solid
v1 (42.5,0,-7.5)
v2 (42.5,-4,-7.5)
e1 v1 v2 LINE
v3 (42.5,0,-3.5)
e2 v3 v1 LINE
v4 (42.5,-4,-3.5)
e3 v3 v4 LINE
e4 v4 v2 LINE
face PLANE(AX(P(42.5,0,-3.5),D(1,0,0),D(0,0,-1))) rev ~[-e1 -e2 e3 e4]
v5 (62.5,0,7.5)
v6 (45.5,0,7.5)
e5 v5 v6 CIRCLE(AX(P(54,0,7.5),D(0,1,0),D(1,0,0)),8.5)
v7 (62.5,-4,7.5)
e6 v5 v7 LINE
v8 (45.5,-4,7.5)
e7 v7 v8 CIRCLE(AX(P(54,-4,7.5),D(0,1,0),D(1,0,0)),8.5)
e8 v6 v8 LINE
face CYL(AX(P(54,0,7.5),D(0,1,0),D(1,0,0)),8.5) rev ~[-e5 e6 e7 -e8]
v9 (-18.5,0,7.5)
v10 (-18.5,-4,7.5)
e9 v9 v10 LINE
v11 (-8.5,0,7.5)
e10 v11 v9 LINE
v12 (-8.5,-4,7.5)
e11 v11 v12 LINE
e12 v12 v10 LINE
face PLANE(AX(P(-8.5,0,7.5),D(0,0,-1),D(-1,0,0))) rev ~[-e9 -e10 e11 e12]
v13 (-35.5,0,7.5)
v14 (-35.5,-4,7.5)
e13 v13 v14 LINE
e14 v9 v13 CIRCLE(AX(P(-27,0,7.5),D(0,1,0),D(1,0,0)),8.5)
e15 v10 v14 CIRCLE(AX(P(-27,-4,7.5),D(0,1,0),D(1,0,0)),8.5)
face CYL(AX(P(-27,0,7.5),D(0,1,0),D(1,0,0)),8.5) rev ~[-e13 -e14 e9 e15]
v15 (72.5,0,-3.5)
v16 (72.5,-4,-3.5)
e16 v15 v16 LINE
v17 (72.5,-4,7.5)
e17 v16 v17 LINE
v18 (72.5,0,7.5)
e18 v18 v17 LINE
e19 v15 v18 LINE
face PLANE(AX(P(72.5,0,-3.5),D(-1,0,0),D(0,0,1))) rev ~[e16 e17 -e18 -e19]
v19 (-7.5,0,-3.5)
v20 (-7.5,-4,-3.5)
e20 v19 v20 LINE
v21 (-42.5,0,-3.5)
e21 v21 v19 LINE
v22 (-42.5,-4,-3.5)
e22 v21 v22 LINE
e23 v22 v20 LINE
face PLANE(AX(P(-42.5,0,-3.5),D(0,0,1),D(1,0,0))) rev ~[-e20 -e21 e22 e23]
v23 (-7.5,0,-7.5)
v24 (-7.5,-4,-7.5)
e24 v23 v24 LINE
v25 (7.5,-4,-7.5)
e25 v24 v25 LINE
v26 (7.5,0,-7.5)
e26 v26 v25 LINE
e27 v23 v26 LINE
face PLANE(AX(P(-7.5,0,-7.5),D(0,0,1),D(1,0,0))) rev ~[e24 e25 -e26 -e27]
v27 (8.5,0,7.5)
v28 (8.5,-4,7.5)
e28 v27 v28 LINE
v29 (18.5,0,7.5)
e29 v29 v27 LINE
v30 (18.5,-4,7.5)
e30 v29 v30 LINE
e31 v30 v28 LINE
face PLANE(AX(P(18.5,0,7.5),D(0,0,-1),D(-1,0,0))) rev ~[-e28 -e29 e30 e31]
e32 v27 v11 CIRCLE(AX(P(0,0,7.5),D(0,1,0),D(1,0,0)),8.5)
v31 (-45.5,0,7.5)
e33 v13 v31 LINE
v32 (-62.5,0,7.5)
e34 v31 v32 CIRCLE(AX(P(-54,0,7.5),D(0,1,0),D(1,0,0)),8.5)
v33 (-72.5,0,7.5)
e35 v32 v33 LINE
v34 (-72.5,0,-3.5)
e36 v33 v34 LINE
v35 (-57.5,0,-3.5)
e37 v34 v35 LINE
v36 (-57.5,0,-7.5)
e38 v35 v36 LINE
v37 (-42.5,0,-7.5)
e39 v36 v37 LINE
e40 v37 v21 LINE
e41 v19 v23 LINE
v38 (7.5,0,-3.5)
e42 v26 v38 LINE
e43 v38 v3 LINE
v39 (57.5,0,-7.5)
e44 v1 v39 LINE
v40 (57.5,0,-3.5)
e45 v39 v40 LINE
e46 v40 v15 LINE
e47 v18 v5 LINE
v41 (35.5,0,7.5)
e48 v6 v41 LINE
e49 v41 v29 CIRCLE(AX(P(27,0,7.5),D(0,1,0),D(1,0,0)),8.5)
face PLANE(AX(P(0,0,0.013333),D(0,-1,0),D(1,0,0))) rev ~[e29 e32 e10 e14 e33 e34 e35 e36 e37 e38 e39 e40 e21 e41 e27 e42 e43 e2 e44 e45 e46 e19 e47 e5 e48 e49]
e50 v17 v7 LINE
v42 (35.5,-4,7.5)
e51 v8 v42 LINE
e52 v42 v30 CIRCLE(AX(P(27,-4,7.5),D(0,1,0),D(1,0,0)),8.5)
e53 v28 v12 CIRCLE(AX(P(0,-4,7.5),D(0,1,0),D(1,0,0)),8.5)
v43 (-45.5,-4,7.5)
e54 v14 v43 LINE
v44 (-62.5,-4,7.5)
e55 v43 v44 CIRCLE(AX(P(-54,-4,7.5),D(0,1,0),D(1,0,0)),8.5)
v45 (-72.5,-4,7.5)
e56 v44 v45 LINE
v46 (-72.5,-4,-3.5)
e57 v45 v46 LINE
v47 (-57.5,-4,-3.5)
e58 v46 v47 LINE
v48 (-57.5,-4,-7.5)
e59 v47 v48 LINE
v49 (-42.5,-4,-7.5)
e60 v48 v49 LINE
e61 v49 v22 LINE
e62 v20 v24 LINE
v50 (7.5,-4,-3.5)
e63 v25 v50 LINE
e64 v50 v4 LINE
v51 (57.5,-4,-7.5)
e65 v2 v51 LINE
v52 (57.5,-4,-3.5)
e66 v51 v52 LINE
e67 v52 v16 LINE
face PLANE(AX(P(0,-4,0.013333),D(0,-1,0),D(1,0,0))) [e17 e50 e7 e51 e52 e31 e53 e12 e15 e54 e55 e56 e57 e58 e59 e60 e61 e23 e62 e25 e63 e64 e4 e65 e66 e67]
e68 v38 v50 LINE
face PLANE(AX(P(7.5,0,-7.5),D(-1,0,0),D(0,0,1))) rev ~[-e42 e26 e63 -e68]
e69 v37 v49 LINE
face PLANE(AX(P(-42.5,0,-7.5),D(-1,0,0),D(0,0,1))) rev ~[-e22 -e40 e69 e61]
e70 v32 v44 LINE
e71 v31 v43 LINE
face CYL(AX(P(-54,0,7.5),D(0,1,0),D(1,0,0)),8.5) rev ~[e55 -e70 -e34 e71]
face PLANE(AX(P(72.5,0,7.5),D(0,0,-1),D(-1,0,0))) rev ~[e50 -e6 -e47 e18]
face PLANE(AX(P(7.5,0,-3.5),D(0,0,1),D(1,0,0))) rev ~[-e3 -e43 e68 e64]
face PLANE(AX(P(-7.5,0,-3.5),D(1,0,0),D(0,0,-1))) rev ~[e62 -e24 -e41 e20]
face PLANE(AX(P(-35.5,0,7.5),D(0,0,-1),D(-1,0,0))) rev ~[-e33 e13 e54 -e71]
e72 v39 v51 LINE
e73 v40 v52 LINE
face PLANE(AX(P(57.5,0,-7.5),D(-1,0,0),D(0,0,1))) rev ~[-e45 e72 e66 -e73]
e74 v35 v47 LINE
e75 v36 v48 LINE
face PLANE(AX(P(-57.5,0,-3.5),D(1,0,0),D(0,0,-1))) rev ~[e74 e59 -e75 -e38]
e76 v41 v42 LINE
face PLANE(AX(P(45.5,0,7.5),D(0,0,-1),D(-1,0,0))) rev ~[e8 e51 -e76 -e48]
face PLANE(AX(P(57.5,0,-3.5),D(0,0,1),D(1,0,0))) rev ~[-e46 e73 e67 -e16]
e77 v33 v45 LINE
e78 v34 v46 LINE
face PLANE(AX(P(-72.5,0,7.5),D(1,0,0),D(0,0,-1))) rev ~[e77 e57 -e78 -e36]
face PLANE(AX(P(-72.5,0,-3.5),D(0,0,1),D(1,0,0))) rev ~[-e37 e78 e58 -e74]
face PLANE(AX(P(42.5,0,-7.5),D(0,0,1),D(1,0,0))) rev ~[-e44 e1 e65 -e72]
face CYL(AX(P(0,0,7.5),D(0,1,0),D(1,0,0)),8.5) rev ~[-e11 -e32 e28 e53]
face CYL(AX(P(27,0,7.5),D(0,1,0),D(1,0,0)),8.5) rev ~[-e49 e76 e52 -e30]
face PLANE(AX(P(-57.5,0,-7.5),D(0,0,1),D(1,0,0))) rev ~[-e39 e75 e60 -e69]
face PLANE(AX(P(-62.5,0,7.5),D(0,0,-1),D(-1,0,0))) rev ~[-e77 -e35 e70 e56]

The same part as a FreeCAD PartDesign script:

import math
import FreeCAD as App
import Part
import Sketcher
from FreeCAD import Vector

doc = App.newDocument("Part")
body = doc.addObject("PartDesign::Body", "Body")

sketch1 = doc.addObject("Sketcher::SketchObject", "Sketch")
body.addObject(sketch1)
sketch1.AttachmentSupport = (doc.XZ_Plane, [""])
sketch1.MapMode = "FlatFace"
sketch1.addGeometry([
    Part.LineSegment(Vector(-62.5, 7.5, 0), Vector(-72.5, 7.5, 0)),
    Part.LineSegment(Vector(-72.5, 7.5, 0), Vector(-72.5, -3.5, 0)),
    Part.LineSegment(Vector(-72.5, -3.5, 0), Vector(-57.5, -3.5, 0)),
    Part.LineSegment(Vector(-57.5, -3.5, 0), Vector(-57.5, -7.5, 0)),
    Part.LineSegment(Vector(-57.5, -7.5, 0), Vector(-42.5, -7.5, 0)),
    Part.LineSegment(Vector(-42.5, -7.5, 0), Vector(-42.5, -3.5, 0)),
    Part.LineSegment(Vector(-42.5, -3.5, 0), Vector(-7.5, -3.5, 0)),
    Part.LineSegment(Vector(-7.5, -3.5, 0), Vector(-7.5, -7.5, 0)),
    Part.LineSegment(Vector(-7.5, -7.5, 0), Vector(7.5, -7.5, 0)),
    Part.LineSegment(Vector(7.5, -7.5, 0), Vector(7.5, -3.5, 0)),
    Part.LineSegment(Vector(7.5, -3.5, 0), Vector(42.5, -3.5, 0)),
    Part.LineSegment(Vector(42.5, -3.5, 0), Vector(42.5, -7.5, 0)),
    Part.LineSegment(Vector(42.5, -7.5, 0), Vector(57.5, -7.5, 0)),
    Part.LineSegment(Vector(57.5, -7.5, 0), Vector(57.5, -3.5, 0)),
    Part.LineSegment(Vector(57.5, -3.5, 0), Vector(72.5, -3.5, 0)),
    Part.LineSegment(Vector(72.5, -3.5, 0), Vector(72.5, 7.5, 0)),
    Part.LineSegment(Vector(72.5, 7.5, 0), Vector(62.5, 7.5, 0)),
    Part.ArcOfCircle(Part.Circle(Vector(54, 7.5, 0), Vector(0, 0, 1), 8.5), math.radians(180), math.radians(360)),
    Part.LineSegment(Vector(45.5, 7.5, 0), Vector(35.5, 7.5, 0)),
    Part.ArcOfCircle(Part.Circle(Vector(27, 7.5, 0), Vector(0, 0, 1), 8.5), math.radians(180), math.radians(360)),
    Part.LineSegment(Vector(18.5, 7.5, 0), Vector(8.5, 7.5, 0)),
    Part.ArcOfCircle(Part.Circle(Vector(0, 7.5, 0), Vector(0, 0, 1), 8.5), math.radians(180), math.radians(360)),
    Part.LineSegment(Vector(-8.5, 7.5, 0), Vector(-18.5, 7.5, 0)),
    Part.ArcOfCircle(Part.Circle(Vector(-27, 7.5, 0), Vector(0, 0, 1), 8.5), math.radians(180), math.radians(360)),
    Part.LineSegment(Vector(-35.5, 7.5, 0), Vector(-45.5, 7.5, 0)),
    Part.ArcOfCircle(Part.Circle(Vector(-54, 7.5, 0), Vector(0, 0, 1), 8.5), math.radians(180), math.radians(360)),
], False)
sketch1.addConstraint([
    Sketcher.Constraint("Coincident", 0, 2, 1, 1),
    Sketcher.Constraint("Coincident", 1, 2, 2, 1),
    Sketcher.Constraint("Coincident", 2, 2, 3, 1),
    Sketcher.Constraint("Coincident", 3, 2, 4, 1),
    Sketcher.Constraint("Coincident", 4, 2, 5, 1),
    Sketcher.Constraint("Coincident", 5, 2, 6, 1),
    Sketcher.Constraint("Coincident", 6, 2, 7, 1),
    Sketcher.Constraint("Coincident", 7, 2, 8, 1),
    Sketcher.Constraint("Coincident", 8, 2, 9, 1),
    Sketcher.Constraint("Coincident", 9, 2, 10, 1),
    Sketcher.Constraint("Coincident", 10, 2, 11, 1),
    Sketcher.Constraint("Coincident", 11, 2, 12, 1),
    Sketcher.Constraint("Coincident", 12, 2, 13, 1),
    Sketcher.Constraint("Coincident", 13, 2, 14, 1),
    Sketcher.Constraint("Coincident", 14, 2, 15, 1),
    Sketcher.Constraint("Coincident", 15, 2, 16, 1),
    Sketcher.Constraint("Coincident", 16, 2, 17, 2),
    Sketcher.Constraint("Coincident", 17, 1, 18, 1),
    Sketcher.Constraint("Coincident", 18, 2, 19, 2),
    Sketcher.Constraint("Coincident", 19, 1, 20, 1),
    Sketcher.Constraint("Coincident", 20, 2, 21, 2),
    Sketcher.Constraint("Coincident", 21, 1, 22, 1),
    Sketcher.Constraint("Coincident", 22, 2, 23, 2),
    Sketcher.Constraint("Coincident", 23, 1, 24, 1),
    Sketcher.Constraint("Coincident", 24, 2, 25, 2),
    Sketcher.Constraint("Coincident", 25, 1, 0, 1),
    Sketcher.Constraint("Horizontal", 0),
    Sketcher.Constraint("Vertical", 1),
    Sketcher.Constraint("Horizontal", 2),
    Sketcher.Constraint("Vertical", 3),
    Sketcher.Constraint("Horizontal", 4),
    Sketcher.Constraint("Vertical", 5),
    Sketcher.Constraint("Horizontal", 6),
    Sketcher.Constraint("Vertical", 7),
    Sketcher.Constraint("Horizontal", 8),
    Sketcher.Constraint("Vertical", 9),
    Sketcher.Constraint("Horizontal", 10),
    Sketcher.Constraint("Vertical", 11),
    Sketcher.Constraint("Horizontal", 12),
    Sketcher.Constraint("Vertical", 13),
    Sketcher.Constraint("Horizontal", 14),
    Sketcher.Constraint("Vertical", 15),
    Sketcher.Constraint("Horizontal", 16),
    Sketcher.Constraint("Horizontal", 18),
    Sketcher.Constraint("Horizontal", 20),
    Sketcher.Constraint("Horizontal", 22),
    Sketcher.Constraint("Horizontal", 24),
    Sketcher.Constraint("Equal", 17, 19),
    Sketcher.Constraint("Equal", 19, 21),
    Sketcher.Constraint("Equal", 21, 23),
    Sketcher.Constraint("Equal", 23, 25),
    Sketcher.Constraint("Symmetric", 19, 3, 23, 3, -2),
    Sketcher.Constraint("Symmetric", 17, 3, 25, 3, -2),
    Sketcher.Constraint("Symmetric", 6, 2, 9, 2, -2),
    Sketcher.Constraint("Symmetric", 4, 2, 11, 2, -2),
    Sketcher.Constraint("Symmetric", 2, 2, 13, 2, -2),
    Sketcher.Constraint("Symmetric", 0, 2, 15, 2, -2),
    Sketcher.Constraint("Symmetric", 20, 2, 21, 1, -2),
    Sketcher.Constraint("Horizontal", 17, 3, 19, 3),
    Sketcher.Constraint("Horizontal", 19, 3, 21, 3),
    Sketcher.Constraint("Horizontal", 25, 3, 0, 2),
    Sketcher.Constraint("Horizontal", 2, 2, 5, 2),
    Sketcher.Constraint("Horizontal", 4, 2, 7, 2),
    Sketcher.Constraint("Horizontal", 16, 2, 17, 1),
    Sketcher.Constraint("Horizontal", 18, 2, 19, 1),
    Sketcher.Constraint("Horizontal", 22, 2, 23, 1),
    Sketcher.Constraint("Equal", 2, 4),
    Sketcher.Constraint("Equal", 4, 8),
    Sketcher.Constraint("Equal", 16, 18),
    Sketcher.Constraint("Equal", 18, 20),
    Sketcher.Constraint("Radius", 17, 8.5),
    Sketcher.Constraint("DistanceX", 0, 2, 0, 1, 10.0),
    Sketcher.Constraint("DistanceX", 2, 1, 2, 2, 15.0),
    Sketcher.Constraint("DistanceY", 1, 2, 1, 1, 11.0),
    Sketcher.Constraint("DistanceY", 3, 2, 3, 1, 4.0),
    Sketcher.Constraint("DistanceY", -1, 1, 17, 3, 7.5),
])
pad1 = doc.addObject("PartDesign::Pad", "Pad")
body.addObject(pad1)
pad1.Profile = sketch1
pad1.Length = 4

doc.recompute()
